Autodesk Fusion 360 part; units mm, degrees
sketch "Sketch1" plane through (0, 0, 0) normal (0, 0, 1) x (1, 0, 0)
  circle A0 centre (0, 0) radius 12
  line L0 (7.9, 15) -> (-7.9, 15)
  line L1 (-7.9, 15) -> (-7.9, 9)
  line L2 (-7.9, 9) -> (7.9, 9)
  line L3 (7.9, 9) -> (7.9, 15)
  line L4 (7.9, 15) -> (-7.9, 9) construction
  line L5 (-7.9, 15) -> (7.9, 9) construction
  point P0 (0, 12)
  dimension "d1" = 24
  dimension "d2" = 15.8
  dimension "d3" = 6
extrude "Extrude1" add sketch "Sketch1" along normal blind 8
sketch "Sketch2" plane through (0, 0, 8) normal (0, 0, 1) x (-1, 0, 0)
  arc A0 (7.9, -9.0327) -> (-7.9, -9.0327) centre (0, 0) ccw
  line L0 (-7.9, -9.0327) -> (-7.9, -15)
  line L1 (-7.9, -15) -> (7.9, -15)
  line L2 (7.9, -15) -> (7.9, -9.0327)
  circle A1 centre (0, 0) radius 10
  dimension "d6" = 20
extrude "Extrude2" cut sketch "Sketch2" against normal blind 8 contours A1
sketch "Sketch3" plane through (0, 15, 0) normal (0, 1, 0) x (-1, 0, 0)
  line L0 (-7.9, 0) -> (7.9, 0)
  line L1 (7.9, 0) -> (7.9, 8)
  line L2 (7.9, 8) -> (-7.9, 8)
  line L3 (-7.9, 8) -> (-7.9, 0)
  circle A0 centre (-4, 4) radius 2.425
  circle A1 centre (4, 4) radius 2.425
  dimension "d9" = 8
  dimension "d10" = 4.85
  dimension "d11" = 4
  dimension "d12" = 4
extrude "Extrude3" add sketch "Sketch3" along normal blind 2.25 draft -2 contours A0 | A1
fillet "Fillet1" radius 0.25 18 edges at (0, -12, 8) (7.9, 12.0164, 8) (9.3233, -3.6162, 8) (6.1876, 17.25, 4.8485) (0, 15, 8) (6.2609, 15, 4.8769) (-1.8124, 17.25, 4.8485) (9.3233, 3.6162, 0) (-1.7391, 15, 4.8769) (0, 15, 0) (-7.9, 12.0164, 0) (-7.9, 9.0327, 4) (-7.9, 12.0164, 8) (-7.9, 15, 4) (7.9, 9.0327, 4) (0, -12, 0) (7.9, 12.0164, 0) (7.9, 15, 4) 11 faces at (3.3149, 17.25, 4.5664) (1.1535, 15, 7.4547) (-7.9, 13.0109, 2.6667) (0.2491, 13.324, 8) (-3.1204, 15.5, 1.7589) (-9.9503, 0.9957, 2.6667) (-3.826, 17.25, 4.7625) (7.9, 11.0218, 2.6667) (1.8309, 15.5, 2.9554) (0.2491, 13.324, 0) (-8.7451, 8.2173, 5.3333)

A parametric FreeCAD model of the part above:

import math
import FreeCAD as App
import Part
import Sketcher

V = App.Vector

doc = App.newDocument("Part")
body = doc.addObject("PartDesign::Body", "Body")

sketch1 = body.newObject("Sketcher::SketchObject", "Sketch")
sketch1.AttachmentSupport = (doc.getObject("XY_Plane"), [""])
sketch1.MapMode = "FlatFace"
sketch1.addGeometry(Part.ArcOfCircle(Part.Circle(V(0, 0, 0), V(0, 0, 1), 12), math.radians(131), math.radians(409)), False)
sketch1.addGeometry(Part.LineSegment(V(8, 9, 0), V(8, 15, 0)), False)
sketch1.addGeometry(Part.LineSegment(V(8, 15, 0), V(-8, 15, 0)), False)
sketch1.addGeometry(Part.LineSegment(V(-8, 15, 0), V(-8, 9, 0)), False)
sketch1.addConstraint(Sketcher.Constraint("Coincident", 0, 2, 1, 1))
sketch1.addConstraint(Sketcher.Constraint("Coincident", 1, 2, 2, 1))
sketch1.addConstraint(Sketcher.Constraint("Coincident", 2, 2, 3, 1))
sketch1.addConstraint(Sketcher.Constraint("Coincident", 3, 2, 0, 1))
sketch1.addConstraint(Sketcher.Constraint("Vertical", 1))
sketch1.addConstraint(Sketcher.Constraint("Horizontal", 2))
sketch1.addConstraint(Sketcher.Constraint("Vertical", 3))
sketch1.addConstraint(Sketcher.Constraint("Coincident", 0, 3, -1, 1))
sketch1.addConstraint(Sketcher.Constraint("Horizontal", 0, 2, 3, 2))
sketch1.addConstraint(Sketcher.Constraint("Radius", 0, 12.0))
sketch1.addConstraint(Sketcher.Constraint("DistanceX", 2, 2, 2, 1, 15.8))
sketch1.addConstraint(Sketcher.Constraint("DistanceY", -1, 1, 1, 2, 15.0))
pad1 = body.newObject("PartDesign::Pad", "Pad")
pad1.Profile = sketch1
pad1.Length = 8

sketch2 = body.newObject("Sketcher::SketchObject", "Sketch001")
sketch2.AttachmentSupport = (doc.getObject("XY_Plane"), [""])
sketch2.MapMode = "FlatFace"
sketch2.AttachmentOffset = App.Placement(V(0, 0, 8), App.Rotation())
sketch2.addGeometry(Part.Circle(V(0, 0, 0), V(0, 0, 1), 10), False)
sketch2.addConstraint(Sketcher.Constraint("Coincident", 0, 3, -1, 1))
sketch2.addConstraint(Sketcher.Constraint("Diameter", 0, 20.0))
pocket1 = body.newObject("PartDesign::Pocket", "Pocket")
pocket1.Profile = sketch2
pocket1.Length = 8

sketch3 = body.newObject("Sketcher::SketchObject", "Sketch002")
sketch3.AttachmentSupport = (doc.getObject("XZ_Plane"), [""])
sketch3.MapMode = "FlatFace"
sketch3.AttachmentOffset = App.Placement(V(0, 0, -15), App.Rotation())
sketch3.addGeometry(Part.Circle(V(4, 4, 0), V(0, 0, 1), 2.4), False)
sketch3.addGeometry(Part.Circle(V(-4, 4, 0), V(0, 0, 1), 2.4), False)
sketch3.addConstraint(Sketcher.Constraint("Equal", 0, 1))
sketch3.addConstraint(Sketcher.Constraint("Symmetric", 0, 3, 1, 3, -2))
sketch3.addConstraint(Sketcher.Constraint("Diameter", 0, 4.85))
sketch3.addConstraint(Sketcher.Constraint("DistanceX", -1, 1, 0, 3, 4.0))
sketch3.addConstraint(Sketcher.Constraint("DistanceY", -1, 1, 0, 3, 4.0))
pad2 = body.newObject("PartDesign::Pad", "Pad001")
pad2.Profile = sketch3
pad2.Length = 2.25
pad2.Reversed = True
pad2.TaperAngle = -2
doc.recompute()

fillet = body.newObject("PartDesign::Fillet", "Fillet")
fillet.Base = (pad2, ["Edge1"])
fillet.UseAllEdges = True
fillet.Radius = 0.25

doc.recompute()
